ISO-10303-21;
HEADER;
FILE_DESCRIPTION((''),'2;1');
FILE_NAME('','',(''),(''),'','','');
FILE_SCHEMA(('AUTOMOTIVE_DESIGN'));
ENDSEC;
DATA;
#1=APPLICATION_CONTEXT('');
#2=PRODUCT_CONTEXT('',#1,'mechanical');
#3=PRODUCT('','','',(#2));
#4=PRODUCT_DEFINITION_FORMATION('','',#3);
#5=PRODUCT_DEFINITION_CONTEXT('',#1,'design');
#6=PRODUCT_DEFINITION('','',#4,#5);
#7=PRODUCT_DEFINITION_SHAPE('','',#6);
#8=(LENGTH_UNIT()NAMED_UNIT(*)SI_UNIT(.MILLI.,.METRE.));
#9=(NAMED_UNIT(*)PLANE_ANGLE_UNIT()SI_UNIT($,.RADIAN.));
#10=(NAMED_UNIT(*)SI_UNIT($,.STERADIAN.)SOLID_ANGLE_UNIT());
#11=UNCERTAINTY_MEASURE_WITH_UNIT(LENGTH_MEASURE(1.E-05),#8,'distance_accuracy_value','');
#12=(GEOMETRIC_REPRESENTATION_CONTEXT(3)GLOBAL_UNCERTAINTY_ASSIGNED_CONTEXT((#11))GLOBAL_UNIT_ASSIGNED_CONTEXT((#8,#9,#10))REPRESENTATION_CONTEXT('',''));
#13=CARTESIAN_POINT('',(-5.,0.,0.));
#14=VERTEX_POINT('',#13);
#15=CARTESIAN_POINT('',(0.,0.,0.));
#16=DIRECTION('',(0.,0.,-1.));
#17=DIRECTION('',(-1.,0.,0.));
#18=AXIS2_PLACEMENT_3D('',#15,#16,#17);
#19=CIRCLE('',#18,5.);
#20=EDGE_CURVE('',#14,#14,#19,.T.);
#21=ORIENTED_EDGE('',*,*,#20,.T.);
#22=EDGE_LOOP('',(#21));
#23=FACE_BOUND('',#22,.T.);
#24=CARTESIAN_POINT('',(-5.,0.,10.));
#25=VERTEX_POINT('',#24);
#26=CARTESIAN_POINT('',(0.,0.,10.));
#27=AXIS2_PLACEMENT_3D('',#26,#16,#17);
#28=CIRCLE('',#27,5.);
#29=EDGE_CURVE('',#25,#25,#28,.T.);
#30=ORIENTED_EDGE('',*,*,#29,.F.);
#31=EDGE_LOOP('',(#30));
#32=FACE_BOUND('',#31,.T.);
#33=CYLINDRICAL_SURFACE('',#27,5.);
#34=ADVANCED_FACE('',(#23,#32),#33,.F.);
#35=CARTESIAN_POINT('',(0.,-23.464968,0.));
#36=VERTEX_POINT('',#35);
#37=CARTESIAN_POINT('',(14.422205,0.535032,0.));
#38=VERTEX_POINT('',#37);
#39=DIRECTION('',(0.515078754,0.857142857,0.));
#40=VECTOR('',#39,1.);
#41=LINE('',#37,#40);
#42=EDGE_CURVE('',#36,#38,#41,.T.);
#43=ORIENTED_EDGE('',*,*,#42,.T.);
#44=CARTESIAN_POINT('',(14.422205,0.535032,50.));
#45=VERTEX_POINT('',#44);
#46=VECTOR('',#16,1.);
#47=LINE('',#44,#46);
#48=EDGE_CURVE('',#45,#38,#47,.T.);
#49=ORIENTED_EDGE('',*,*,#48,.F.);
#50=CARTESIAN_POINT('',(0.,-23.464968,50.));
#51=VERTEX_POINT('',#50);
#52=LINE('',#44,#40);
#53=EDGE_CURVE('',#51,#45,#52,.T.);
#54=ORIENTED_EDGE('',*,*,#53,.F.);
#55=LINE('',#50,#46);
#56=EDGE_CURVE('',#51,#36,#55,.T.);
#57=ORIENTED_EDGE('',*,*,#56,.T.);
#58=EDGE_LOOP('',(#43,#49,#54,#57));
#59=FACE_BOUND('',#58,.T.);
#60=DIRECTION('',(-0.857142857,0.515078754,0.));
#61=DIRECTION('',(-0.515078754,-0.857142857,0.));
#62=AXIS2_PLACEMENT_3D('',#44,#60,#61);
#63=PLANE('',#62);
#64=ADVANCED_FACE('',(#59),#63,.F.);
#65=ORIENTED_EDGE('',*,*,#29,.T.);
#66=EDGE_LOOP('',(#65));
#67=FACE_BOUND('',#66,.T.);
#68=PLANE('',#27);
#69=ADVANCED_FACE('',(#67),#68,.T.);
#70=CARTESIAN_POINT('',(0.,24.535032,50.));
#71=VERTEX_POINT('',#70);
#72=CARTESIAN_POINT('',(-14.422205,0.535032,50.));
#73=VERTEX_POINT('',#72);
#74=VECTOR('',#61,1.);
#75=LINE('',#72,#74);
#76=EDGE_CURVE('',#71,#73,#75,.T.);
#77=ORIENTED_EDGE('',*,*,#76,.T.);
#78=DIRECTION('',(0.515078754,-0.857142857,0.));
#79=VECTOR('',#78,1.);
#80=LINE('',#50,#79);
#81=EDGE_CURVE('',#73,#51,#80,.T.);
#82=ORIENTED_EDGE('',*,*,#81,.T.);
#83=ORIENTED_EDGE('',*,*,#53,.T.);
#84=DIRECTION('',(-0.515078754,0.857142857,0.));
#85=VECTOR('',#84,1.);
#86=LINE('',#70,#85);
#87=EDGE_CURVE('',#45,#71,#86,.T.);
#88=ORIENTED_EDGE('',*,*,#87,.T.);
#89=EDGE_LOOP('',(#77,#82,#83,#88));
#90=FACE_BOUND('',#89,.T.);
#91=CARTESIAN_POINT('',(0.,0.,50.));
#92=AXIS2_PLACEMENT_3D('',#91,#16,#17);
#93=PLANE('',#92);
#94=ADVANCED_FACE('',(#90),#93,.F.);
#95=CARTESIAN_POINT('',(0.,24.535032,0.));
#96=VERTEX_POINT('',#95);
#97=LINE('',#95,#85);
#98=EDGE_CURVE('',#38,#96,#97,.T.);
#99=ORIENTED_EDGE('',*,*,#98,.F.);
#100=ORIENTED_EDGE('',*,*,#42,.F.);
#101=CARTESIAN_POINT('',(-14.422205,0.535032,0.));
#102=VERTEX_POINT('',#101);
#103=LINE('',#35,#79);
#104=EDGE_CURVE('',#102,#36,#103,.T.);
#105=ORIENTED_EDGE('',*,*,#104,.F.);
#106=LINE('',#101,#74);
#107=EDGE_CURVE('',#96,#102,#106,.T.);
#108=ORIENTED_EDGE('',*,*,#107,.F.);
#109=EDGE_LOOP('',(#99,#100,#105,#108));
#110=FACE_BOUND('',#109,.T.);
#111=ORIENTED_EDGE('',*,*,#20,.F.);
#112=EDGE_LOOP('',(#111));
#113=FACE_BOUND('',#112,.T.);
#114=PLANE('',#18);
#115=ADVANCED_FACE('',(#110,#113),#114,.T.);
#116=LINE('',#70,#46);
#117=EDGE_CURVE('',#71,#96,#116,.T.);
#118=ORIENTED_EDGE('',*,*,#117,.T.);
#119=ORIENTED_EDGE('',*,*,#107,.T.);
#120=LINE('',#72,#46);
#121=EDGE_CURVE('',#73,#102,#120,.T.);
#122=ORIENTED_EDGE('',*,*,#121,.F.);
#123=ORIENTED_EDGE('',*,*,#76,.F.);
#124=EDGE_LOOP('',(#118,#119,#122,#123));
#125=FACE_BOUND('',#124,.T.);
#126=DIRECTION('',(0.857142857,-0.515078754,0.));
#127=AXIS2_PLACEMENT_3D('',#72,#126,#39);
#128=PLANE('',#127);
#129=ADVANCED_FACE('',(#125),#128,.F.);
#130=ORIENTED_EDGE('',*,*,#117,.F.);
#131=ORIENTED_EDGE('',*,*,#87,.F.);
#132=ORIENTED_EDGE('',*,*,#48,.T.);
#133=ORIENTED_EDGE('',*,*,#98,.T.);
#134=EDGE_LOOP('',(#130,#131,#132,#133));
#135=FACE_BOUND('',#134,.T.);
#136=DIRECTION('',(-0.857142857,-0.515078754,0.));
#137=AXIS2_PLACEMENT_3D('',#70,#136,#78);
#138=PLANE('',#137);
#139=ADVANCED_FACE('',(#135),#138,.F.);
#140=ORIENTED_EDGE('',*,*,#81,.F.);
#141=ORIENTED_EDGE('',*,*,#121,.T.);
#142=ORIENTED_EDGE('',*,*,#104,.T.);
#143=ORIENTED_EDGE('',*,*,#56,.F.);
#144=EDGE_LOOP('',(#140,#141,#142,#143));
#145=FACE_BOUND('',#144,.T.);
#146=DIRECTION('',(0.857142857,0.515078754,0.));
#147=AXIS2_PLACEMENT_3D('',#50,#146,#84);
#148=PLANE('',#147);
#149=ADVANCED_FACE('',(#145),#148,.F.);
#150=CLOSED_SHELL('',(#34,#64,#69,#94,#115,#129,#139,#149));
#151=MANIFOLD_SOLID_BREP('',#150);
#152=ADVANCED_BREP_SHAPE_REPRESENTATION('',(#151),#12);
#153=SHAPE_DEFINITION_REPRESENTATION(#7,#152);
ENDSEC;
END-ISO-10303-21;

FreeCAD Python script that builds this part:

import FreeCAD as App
import Part
import Sketcher
from FreeCAD import Vector


def add_polygon(sketch, points):
    """Adds a closed chain of lines whose ends are joined by coincident constraints."""
    first, n = sketch.GeometryCount, len(points)
    for a, b in zip(points, points[1:] + points[:1]):
        sketch.addGeometry(Part.LineSegment(App.Vector(*a, 0), App.Vector(*b, 0)), False)
    for i in range(n):
        sketch.addConstraint(Sketcher.Constraint("Coincident", first + i, 2, first + (i + 1) % n, 1))

doc = App.newDocument("Part")
body = doc.addObject("PartDesign::Body", "Body")

# Sketch on XY plane
sketch1 = body.newObject("Sketcher::SketchObject", "Sketch")
sketch1.AttachmentSupport = (doc.getObject("XY_Plane"), [""])
sketch1.MapMode = "FlatFace"
add_polygon(sketch1, [(14, 1), (0, 25), (-14, 1), (0, -23)])  # lines 0-3
sketch1.addConstraint([
    Sketcher.Constraint("Symmetric", 1, 2, 3, 2, -2),
    Sketcher.Constraint("PointOnObject", 0, 2, -2),
    Sketcher.Constraint("PointOnObject", 2, 2, -2),
    Sketcher.Constraint("Parallel", 0, 2),
    Sketcher.Constraint("Distance", 0, 28.0),
    Sketcher.Constraint("DistanceY", 1, 2, 0, 2, 24.0),
    Sketcher.Constraint("DistanceY", -1, 1, 0, 2, 24.535032),
])
pad1 = body.newObject("PartDesign::Pad", "Pad")
pad1.Profile = sketch1
pad1.Length = 50

# Sketch on XY plane
sketch2 = body.newObject("Sketcher::SketchObject", "Sketch001")
sketch2.AttachmentSupport = (doc.getObject("XY_Plane"), [""])
sketch2.MapMode = "FlatFace"
sketch2.addGeometry(Part.Circle(Vector(0, 0, 0), Vector(0, 0, 1), 5), False)
sketch2.addConstraint([
    Sketcher.Constraint("Coincident", 0, 3, -1, 1),
    Sketcher.Constraint("Diameter", 0, 10.0),
])
pocket1 = body.newObject("PartDesign::Pocket", "Pocket")
pocket1.Profile = sketch2
pocket1.Length = 10
pocket1.Reversed = True

doc.recompute()
